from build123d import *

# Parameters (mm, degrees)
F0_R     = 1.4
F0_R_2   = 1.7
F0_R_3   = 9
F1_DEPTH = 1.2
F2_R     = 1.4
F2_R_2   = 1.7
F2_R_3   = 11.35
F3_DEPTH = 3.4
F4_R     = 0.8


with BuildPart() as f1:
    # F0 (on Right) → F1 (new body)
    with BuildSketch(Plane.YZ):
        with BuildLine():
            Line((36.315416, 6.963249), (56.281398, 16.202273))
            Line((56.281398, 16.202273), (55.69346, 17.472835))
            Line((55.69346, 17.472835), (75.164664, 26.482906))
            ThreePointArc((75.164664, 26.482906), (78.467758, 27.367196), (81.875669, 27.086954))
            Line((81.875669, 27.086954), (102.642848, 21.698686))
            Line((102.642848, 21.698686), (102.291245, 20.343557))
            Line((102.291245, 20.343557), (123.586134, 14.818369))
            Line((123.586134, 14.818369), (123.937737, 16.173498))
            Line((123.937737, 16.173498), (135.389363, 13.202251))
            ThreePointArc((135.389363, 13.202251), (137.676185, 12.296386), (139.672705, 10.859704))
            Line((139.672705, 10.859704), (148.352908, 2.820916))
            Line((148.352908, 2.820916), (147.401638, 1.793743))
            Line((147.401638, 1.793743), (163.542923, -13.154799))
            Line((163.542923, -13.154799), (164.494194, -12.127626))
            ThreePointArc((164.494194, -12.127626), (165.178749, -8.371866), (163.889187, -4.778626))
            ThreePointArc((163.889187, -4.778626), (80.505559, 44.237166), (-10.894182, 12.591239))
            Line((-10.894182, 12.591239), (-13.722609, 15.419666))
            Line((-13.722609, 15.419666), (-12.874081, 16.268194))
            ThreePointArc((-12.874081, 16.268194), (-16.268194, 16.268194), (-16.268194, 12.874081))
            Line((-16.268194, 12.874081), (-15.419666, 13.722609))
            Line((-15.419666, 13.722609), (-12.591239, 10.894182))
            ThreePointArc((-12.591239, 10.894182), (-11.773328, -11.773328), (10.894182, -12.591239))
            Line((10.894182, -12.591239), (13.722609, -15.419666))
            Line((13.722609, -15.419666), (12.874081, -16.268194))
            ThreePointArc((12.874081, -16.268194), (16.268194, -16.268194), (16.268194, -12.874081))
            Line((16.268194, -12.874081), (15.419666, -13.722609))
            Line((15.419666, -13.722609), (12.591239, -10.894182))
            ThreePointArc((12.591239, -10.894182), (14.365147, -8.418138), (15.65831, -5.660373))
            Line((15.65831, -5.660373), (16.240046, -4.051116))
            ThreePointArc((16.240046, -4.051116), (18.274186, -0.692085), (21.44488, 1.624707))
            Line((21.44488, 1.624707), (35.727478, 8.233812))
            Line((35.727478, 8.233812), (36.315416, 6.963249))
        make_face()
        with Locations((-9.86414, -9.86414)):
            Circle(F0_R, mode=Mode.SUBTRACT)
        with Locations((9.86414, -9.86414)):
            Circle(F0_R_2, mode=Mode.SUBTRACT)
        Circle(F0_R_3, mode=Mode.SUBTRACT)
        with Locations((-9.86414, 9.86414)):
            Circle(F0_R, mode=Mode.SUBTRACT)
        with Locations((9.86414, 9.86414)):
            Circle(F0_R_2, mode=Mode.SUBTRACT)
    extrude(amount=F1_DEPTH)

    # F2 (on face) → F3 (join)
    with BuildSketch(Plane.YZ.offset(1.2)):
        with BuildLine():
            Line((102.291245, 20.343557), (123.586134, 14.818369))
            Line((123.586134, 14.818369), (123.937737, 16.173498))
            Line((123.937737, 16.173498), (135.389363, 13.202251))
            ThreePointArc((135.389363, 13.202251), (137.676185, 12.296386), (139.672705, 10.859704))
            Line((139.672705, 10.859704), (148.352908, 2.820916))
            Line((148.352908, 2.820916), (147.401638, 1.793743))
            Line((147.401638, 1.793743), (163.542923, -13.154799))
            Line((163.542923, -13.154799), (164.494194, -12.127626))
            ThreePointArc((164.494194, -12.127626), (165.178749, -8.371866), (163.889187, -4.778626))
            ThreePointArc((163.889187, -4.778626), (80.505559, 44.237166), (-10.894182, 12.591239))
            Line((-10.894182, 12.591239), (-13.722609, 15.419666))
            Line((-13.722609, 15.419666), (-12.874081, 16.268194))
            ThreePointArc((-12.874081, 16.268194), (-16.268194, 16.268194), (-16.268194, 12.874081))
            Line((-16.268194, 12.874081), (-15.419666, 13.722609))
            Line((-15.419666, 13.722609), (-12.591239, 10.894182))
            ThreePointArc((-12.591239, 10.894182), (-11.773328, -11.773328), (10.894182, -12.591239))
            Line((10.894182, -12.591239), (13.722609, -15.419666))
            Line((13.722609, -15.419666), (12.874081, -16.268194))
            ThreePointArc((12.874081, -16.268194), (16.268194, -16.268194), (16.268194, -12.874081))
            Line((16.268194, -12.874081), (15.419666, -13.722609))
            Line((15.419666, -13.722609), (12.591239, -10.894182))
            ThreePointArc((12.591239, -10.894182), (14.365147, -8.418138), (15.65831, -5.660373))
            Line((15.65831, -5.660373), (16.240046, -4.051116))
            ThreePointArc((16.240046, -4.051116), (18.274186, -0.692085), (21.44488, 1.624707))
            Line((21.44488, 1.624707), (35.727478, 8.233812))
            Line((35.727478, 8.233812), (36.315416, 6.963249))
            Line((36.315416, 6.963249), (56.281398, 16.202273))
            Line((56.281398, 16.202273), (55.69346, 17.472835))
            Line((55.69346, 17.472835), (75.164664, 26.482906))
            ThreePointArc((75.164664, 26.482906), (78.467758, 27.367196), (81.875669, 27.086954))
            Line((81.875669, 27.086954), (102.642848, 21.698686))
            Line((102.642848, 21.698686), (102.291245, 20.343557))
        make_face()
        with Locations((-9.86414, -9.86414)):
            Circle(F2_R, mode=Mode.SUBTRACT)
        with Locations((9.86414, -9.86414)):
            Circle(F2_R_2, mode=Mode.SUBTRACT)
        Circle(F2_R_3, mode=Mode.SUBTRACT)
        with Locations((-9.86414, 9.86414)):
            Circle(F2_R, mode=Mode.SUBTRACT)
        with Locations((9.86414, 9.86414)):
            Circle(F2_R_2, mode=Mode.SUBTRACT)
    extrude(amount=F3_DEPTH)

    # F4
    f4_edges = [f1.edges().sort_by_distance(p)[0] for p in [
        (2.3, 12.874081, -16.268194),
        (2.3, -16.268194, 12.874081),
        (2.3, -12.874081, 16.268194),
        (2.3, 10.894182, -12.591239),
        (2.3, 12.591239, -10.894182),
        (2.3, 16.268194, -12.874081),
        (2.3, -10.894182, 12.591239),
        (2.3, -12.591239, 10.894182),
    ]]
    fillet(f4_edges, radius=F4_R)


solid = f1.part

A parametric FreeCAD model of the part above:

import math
import FreeCAD as App
import Part
import Sketcher
Q = App.Units.Quantity


def edges_at(feature, points):
    """Names of the edges that pass closest to the given points."""
    edges = feature.Shape.Edges
    near = lambda p: min(range(len(edges)), key=lambda i: edges[i].distToShape(Part.Vertex(*p))[0])
    return sorted({f"Edge{near(p) + 1}" for p in points})

doc = App.newDocument("Part")
body = doc.addObject("PartDesign::Body", "Body")

sketch1 = body.newObject("Sketcher::SketchObject", "Sketch")
sketch1.AttachmentSupport = (doc.getObject("YZ_Plane"), [""])
sketch1.MapMode = "FlatFace"
sketch1.addGeometry([
    Part.LineSegment(App.Vector(36.315416, 6.963249, 0), App.Vector(56.281398, 16.202273, 0)),
    Part.LineSegment(App.Vector(56.281398, 16.202273, 0), App.Vector(55.69346, 17.472835, 0)),
    Part.LineSegment(App.Vector(55.69346, 17.472835, 0), App.Vector(75.164664, 26.482906, 0)),
    Part.ArcOfCircle(Part.Circle(App.Vector(79.364219, 17.40746, 0), App.Vector(0, 0, 1), 9.999999), math.radians(75.454723), math.radians(114.831781)),
    Part.LineSegment(App.Vector(81.875669, 27.086954, 0), App.Vector(102.642848, 21.698686, 0)),
    Part.LineSegment(App.Vector(102.642848, 21.698686, 0), App.Vector(102.291245, 20.343557, 0)),
    Part.LineSegment(App.Vector(102.291245, 20.343557, 0), App.Vector(123.586134, 14.818369, 0)),
    Part.LineSegment(App.Vector(123.586134, 14.818369, 0), App.Vector(123.937737, 16.173498, 0)),
    Part.LineSegment(App.Vector(123.937737, 16.173498, 0), App.Vector(135.389363, 13.202251, 0)),
    Part.ArcOfCircle(Part.Circle(App.Vector(132.877908, 3.522746, 0), App.Vector(0, 0, 1), 10.000011), math.radians(47.197058), math.radians(75.454707)),
    Part.LineSegment(App.Vector(139.672705, 10.859704, 0), App.Vector(148.352908, 2.820916, 0)),
    Part.LineSegment(App.Vector(148.352908, 2.820916, 0), App.Vector(147.401638, 1.793743, 0)),
    Part.LineSegment(App.Vector(147.401638, 1.793743, 0), App.Vector(163.542923, -13.154799, 0)),
    Part.LineSegment(App.Vector(163.542923, -13.154799, 0), App.Vector(164.494194, -12.127626, 0)),
    Part.ArcOfCircle(Part.Circle(App.Vector(157.845732, -8.975558, 0), App.Vector(0, 0, 1), 7.357825), math.radians(-25.365858), math.radians(34.778391)),
    Part.ArcOfCircle(Part.Circle(App.Vector(69.091976, -70.611425, 0), App.Vector(0, 0, 1), 115.414335), math.radians(34.778403), math.radians(133.870827)),
    Part.LineSegment(App.Vector(-10.894182, 12.591239, 0), App.Vector(-13.722609, 15.419666, 0)),
    Part.LineSegment(App.Vector(-13.722609, 15.419666, 0), App.Vector(-12.874081, 16.268194, 0)),
    Part.ArcOfCircle(Part.Circle(App.Vector(-14.571138, 14.571138, 0), App.Vector(0, 0, 1), 2.4), math.radians(45), math.radians(225)),
    Part.LineSegment(App.Vector(-16.268194, 12.874081, 0), App.Vector(-15.419666, 13.722609, 0)),
    Part.LineSegment(App.Vector(-15.419666, 13.722609, 0), App.Vector(-12.591239, 10.894182, 0)),
    Part.ArcOfCircle(Part.Circle(App.Vector(0, 0, 0), App.Vector(0, 0, 1), 16.65), math.radians(139.13301), math.radians(310.86699)),
    Part.LineSegment(App.Vector(10.894182, -12.591239, 0), App.Vector(13.722609, -15.419666, 0)),
    Part.LineSegment(App.Vector(13.722609, -15.419666, 0), App.Vector(12.874081, -16.268194, 0)),
    Part.ArcOfCircle(Part.Circle(App.Vector(14.571138, -14.571138, 0), App.Vector(0, 0, 1), 2.4), math.radians(-135), math.radians(45)),
    Part.LineSegment(App.Vector(16.268194, -12.874081, 0), App.Vector(15.419666, -13.722609, 0)),
    Part.LineSegment(App.Vector(15.419666, -13.722609, 0), App.Vector(12.591239, -10.894182, 0)),
    Part.ArcOfCircle(Part.Circle(App.Vector(-0.000003, 0.000001, 0), App.Vector(0, 0, 1), 16.650004), math.radians(-40.866985), math.radians(-19.874581)),
    Part.LineSegment(App.Vector(15.65831, -5.660373, 0), App.Vector(16.240046, -4.051116, 0)),
    Part.ArcOfCircle(Part.Circle(App.Vector(25.644436, -7.450739, 0), App.Vector(0, 0, 1), 10), math.radians(114.831787), math.radians(160.125422)),
    Part.LineSegment(App.Vector(21.44488, 1.624707, 0), App.Vector(35.727478, 8.233812, 0)),
    Part.LineSegment(App.Vector(35.727478, 8.233812, 0), App.Vector(36.315416, 6.963249, 0)),
    Part.Circle(App.Vector(-9.86414, -9.86414, 0), App.Vector(0, 0, 1), 1.4),
    Part.Circle(App.Vector(9.86414, -9.86414, 0), App.Vector(0, 0, 1), 1.7),
    Part.Circle(App.Vector(0, 0, 0), App.Vector(0, 0, 1), 9),
    Part.Circle(App.Vector(-9.86414, 9.86414, 0), App.Vector(0, 0, 1), 1.4),
    Part.Circle(App.Vector(9.86414, 9.86414, 0), App.Vector(0, 0, 1), 1.7),
], False)
sketch1.addConstraint([
    Sketcher.Constraint("Coincident", 0, 2, 1, 1),
    Sketcher.Constraint("Coincident", 1, 2, 2, 1),
    Sketcher.Constraint("Tangent", 2, 2, 3, 2),
    Sketcher.Constraint("Tangent", 3, 1, 4, 1),
    Sketcher.Constraint("Coincident", 4, 2, 5, 1),
    Sketcher.Constraint("Coincident", 5, 2, 6, 1),
    Sketcher.Constraint("Coincident", 6, 2, 7, 1),
    Sketcher.Constraint("Coincident", 7, 2, 8, 1),
    Sketcher.Constraint("Tangent", 8, 2, 9, 2),
    Sketcher.Constraint("Tangent", 9, 1, 10, 1),
    Sketcher.Constraint("Coincident", 10, 2, 11, 1),
    Sketcher.Constraint("Coincident", 11, 2, 12, 1),
    Sketcher.Constraint("Coincident", 12, 2, 13, 1),
    Sketcher.Constraint("Coincident", 13, 2, 14, 1),
    Sketcher.Constraint("Tangent", 14, 2, 15, 1),
    Sketcher.Constraint("Coincident", 15, 2, 16, 1),
    Sketcher.Constraint("Coincident", 16, 2, 17, 1),
    Sketcher.Constraint("Coincident", 17, 2, 18, 1),
    Sketcher.Constraint("Coincident", 18, 2, 19, 1),
    Sketcher.Constraint("Coincident", 19, 2, 20, 1),
    Sketcher.Constraint("Coincident", 20, 2, 21, 1),
    Sketcher.Constraint("Coincident", 21, 2, 22, 1),
    Sketcher.Constraint("Coincident", 22, 2, 23, 1),
    Sketcher.Constraint("Coincident", 23, 2, 24, 1),
    Sketcher.Constraint("Coincident", 24, 2, 25, 1),
    Sketcher.Constraint("Coincident", 25, 2, 26, 1),
    Sketcher.Constraint("Coincident", 26, 2, 27, 1),
    Sketcher.Constraint("Tangent", 27, 2, 28, 1),
    Sketcher.Constraint("Tangent", 28, 2, 29, 2),
    Sketcher.Constraint("Tangent", 29, 1, 30, 1),
    Sketcher.Constraint("Coincident", 30, 2, 31, 1),
    Sketcher.Constraint("Coincident", 31, 2, 0, 1),
    Sketcher.Constraint("Coincident", 21, 3, -1, 1),
    Sketcher.Constraint("Coincident", 27, 3, -1, 1),
    Sketcher.Constraint("Coincident", 34, 3, -1, 1),
    Sketcher.Constraint("Equal", 18, 24),
    Sketcher.Constraint("Equal", 3, 29),
    Sketcher.Constraint("Equal", 32, 35),
    Sketcher.Constraint("Equal", 33, 36),
    Sketcher.Constraint("Symmetric", 18, 3, 24, 3, -1, 1),
    Sketcher.Constraint("Symmetric", 33, 3, 35, 3, -1, 1),
    Sketcher.Constraint("Symmetric", 32, 3, 36, 3, -1, 1),
    Sketcher.Constraint("Symmetric", 15, 2, 21, 2, -1, 1),
    Sketcher.Constraint("Symmetric", 16, 2, 22, 2, -1, 1),
    Sketcher.Constraint("Symmetric", 19, 2, 25, 2, -1, 1),
    Sketcher.Constraint("Symmetric", 20, 2, 26, 2, -1, 1),
    Sketcher.Constraint("Symmetric", 32, 3, 33, 3, -2),
    Sketcher.Constraint("Perpendicular", 0, 1),
    Sketcher.Constraint("Perpendicular", 1, 2),
    Sketcher.Constraint("Perpendicular", 4, 5),
    Sketcher.Constraint("Perpendicular", 5, 6),
    Sketcher.Constraint("Perpendicular", 6, 7),
    Sketcher.Constraint("Perpendicular", 7, 8),
    Sketcher.Constraint("Perpendicular", 10, 11),
    Sketcher.Constraint("Perpendicular", 11, 12),
    Sketcher.Constraint("Perpendicular", 12, 13),
    Sketcher.Constraint("Perpendicular", 16, 17),
    Sketcher.Constraint("Parallel", 17, 19),
    Sketcher.Constraint("Perpendicular", 19, 20),
    Sketcher.Constraint("Perpendicular", 22, 23),
    Sketcher.Constraint("Parallel", 23, 25),
    Sketcher.Constraint("Parallel", 2, 30),
    Sketcher.Constraint("Perpendicular", 30, 31),
    Sketcher.Constraint("Equal", 2, 4),
    Sketcher.Constraint("Equal", 1, 5),
    Sketcher.Constraint("Equal", 0, 6),
    Sketcher.Constraint("Equal", 5, 7),
    Sketcher.Constraint("Equal", 8, 10),
    Sketcher.Constraint("Equal", 7, 11),
    Sketcher.Constraint("Equal", 6, 12),
    Sketcher.Constraint("Equal", 11, 13),
    Sketcher.Constraint("Equal", 17, 19),
    Sketcher.Constraint("Equal", 16, 20),
    Sketcher.Constraint("Equal", 13, 31),
    Sketcher.Constraint("Diameter", 34, 18.0),
    Sketcher.Constraint("Radius", 3, 9.999999),
    Sketcher.Constraint("Diameter", 32, 2.8),
    Sketcher.Constraint("Diameter", 33, 3.4),
    Sketcher.Constraint("Radius", 18, 2.4),
    Sketcher.Constraint("Angle", 16, Q("135 deg")),
    Sketcher.Constraint("Radius", 21, 16.65),
    Sketcher.Constraint("Distance", 0, 22.0),
    Sketcher.Constraint("Distance", 16, 4.0),
    Sketcher.Constraint("Distance", 1, 1.4),
    Sketcher.Constraint("Distance", 17, 1.2),
    Sketcher.Constraint("Radius", 9, 10.000011),
    Sketcher.Constraint("Radius", 14, 7.357825),
    Sketcher.Constraint("Radius", 15, 115.414335),
    Sketcher.Constraint("DistanceX", 9, 3, 10, 2, 15.475),
    Sketcher.Constraint("DistanceY", 13, 2, 14, 2, 7.349),
    Sketcher.Constraint("DistanceX", -1, 1, 0, 2, 56.281398),
    Sketcher.Constraint("DistanceY", 12, 2, -1, 1, 13.154799),
    Sketcher.Constraint("DistanceX", 24, 3, 29, 3, 11.073299),
    Sketcher.Constraint("DistanceY", 24, 3, 29, 3, 7.120399),
    Sketcher.Constraint("DistanceY", 29, 3, 3, 3, 24.858199),
    Sketcher.Constraint("DistanceY", 32, 3, 29, 3, 2.413401),
    Sketcher.Constraint("DistanceY", 14, 3, 11, 2, 10.769301),
    Sketcher.Constraint("DistanceX", 20, 2, 35, 3, 2.727099),
    Sketcher.Constraint("DistanceX", 18, 3, 20, 2, 1.979899),
    Sketcher.Constraint("DistanceX", 29, 1, 30, 2, 14.282598),
    Sketcher.Constraint("DistanceX", -1, 1, 3, 3, 79.364219),
])
pad1 = body.newObject("PartDesign::Pad", "Pad")
pad1.Profile = sketch1
pad1.Length = 1.2

sketch2 = body.newObject("Sketcher::SketchObject", "Sketch001")
sketch2.AttachmentSupport = (doc.getObject("YZ_Plane"), [""])
sketch2.MapMode = "FlatFace"
sketch2.AttachmentOffset = App.Placement(App.Vector(0, 0, 1.2), App.Rotation())
sketch2.addGeometry([
    Part.LineSegment(App.Vector(102.291245, 20.343557, 0), App.Vector(123.586134, 14.818369, 0)),
    Part.LineSegment(App.Vector(123.586134, 14.818369, 0), App.Vector(123.937737, 16.173498, 0)),
    Part.LineSegment(App.Vector(123.937737, 16.173498, 0), App.Vector(135.389363, 13.202251, 0)),
    Part.ArcOfCircle(Part.Circle(App.Vector(132.877908, 3.522746, 0), App.Vector(0, 0, 1), 10.000011), math.radians(47.197058), math.radians(75.454707)),
    Part.LineSegment(App.Vector(139.672705, 10.859704, 0), App.Vector(148.352908, 2.820916, 0)),
    Part.LineSegment(App.Vector(148.352908, 2.820916, 0), App.Vector(147.401638, 1.793743, 0)),
    Part.LineSegment(App.Vector(147.401638, 1.793743, 0), App.Vector(163.542923, -13.154799, 0)),
    Part.LineSegment(App.Vector(163.542923, -13.154799, 0), App.Vector(164.494194, -12.127626, 0)),
    Part.ArcOfCircle(Part.Circle(App.Vector(157.845732, -8.975558, 0), App.Vector(0, 0, 1), 7.357825), math.radians(-25.365858), math.radians(34.778391)),
    Part.ArcOfCircle(Part.Circle(App.Vector(69.091976, -70.611425, 0), App.Vector(0, 0, 1), 115.414335), math.radians(34.778403), math.radians(133.870827)),
    Part.LineSegment(App.Vector(-10.894182, 12.591239, 0), App.Vector(-13.722609, 15.419666, 0)),
    Part.LineSegment(App.Vector(-13.722609, 15.419666, 0), App.Vector(-12.874081, 16.268194, 0)),
    Part.ArcOfCircle(Part.Circle(App.Vector(-14.571138, 14.571138, 0), App.Vector(0, 0, 1), 2.4), math.radians(45), math.radians(225)),
    Part.LineSegment(App.Vector(-16.268194, 12.874081, 0), App.Vector(-15.419666, 13.722609, 0)),
    Part.LineSegment(App.Vector(-15.419666, 13.722609, 0), App.Vector(-12.591239, 10.894182, 0)),
    Part.ArcOfCircle(Part.Circle(App.Vector(0, 0, 0), App.Vector(0, 0, 1), 16.65), math.radians(139.13301), math.radians(310.86699)),
    Part.LineSegment(App.Vector(10.894182, -12.591239, 0), App.Vector(13.722609, -15.419666, 0)),
    Part.LineSegment(App.Vector(13.722609, -15.419666, 0), App.Vector(12.874081, -16.268194, 0)),
    Part.ArcOfCircle(Part.Circle(App.Vector(14.571138, -14.571138, 0), App.Vector(0, 0, 1), 2.4), math.radians(-135), math.radians(45)),
    Part.LineSegment(App.Vector(16.268194, -12.874081, 0), App.Vector(15.419666, -13.722609, 0)),
    Part.LineSegment(App.Vector(15.419666, -13.722609, 0), App.Vector(12.591239, -10.894182, 0)),
    Part.ArcOfCircle(Part.Circle(App.Vector(-0.000003, 0.000001, 0), App.Vector(0, 0, 1), 16.650004), math.radians(-40.866985), math.radians(-19.874581)),
    Part.LineSegment(App.Vector(15.65831, -5.660373, 0), App.Vector(16.240046, -4.051116, 0)),
    Part.ArcOfCircle(Part.Circle(App.Vector(25.644436, -7.450739, 0), App.Vector(0, 0, 1), 10), math.radians(114.831787), math.radians(160.125422)),
    Part.LineSegment(App.Vector(21.44488, 1.624707, 0), App.Vector(35.727478, 8.233812, 0)),
    Part.LineSegment(App.Vector(35.727478, 8.233812, 0), App.Vector(36.315416, 6.963249, 0)),
    Part.LineSegment(App.Vector(36.315416, 6.963249, 0), App.Vector(56.281398, 16.202273, 0)),
    Part.LineSegment(App.Vector(56.281398, 16.202273, 0), App.Vector(55.69346, 17.472835, 0)),
    Part.LineSegment(App.Vector(55.69346, 17.472835, 0), App.Vector(75.164664, 26.482906, 0)),
    Part.ArcOfCircle(Part.Circle(App.Vector(79.364219, 17.40746, 0), App.Vector(0, 0, 1), 9.999999), math.radians(75.454723), math.radians(114.831781)),
    Part.LineSegment(App.Vector(81.875669, 27.086954, 0), App.Vector(102.642848, 21.698686, 0)),
    Part.LineSegment(App.Vector(102.642848, 21.698686, 0), App.Vector(102.291245, 20.343557, 0)),
    Part.Circle(App.Vector(-9.86414, -9.86414, 0), App.Vector(0, 0, 1), 1.4),
    Part.Circle(App.Vector(9.86414, -9.86414, 0), App.Vector(0, 0, 1), 1.7),
    Part.Circle(App.Vector(0, 0, 0), App.Vector(0, 0, 1), 11.35),
    Part.Circle(App.Vector(-9.86414, 9.86414, 0), App.Vector(0, 0, 1), 1.4),
    Part.Circle(App.Vector(9.86414, 9.86414, 0), App.Vector(0, 0, 1), 1.7),
], False)
sketch2.addConstraint([
    Sketcher.Constraint("Coincident", 0, 2, 1, 1),
    Sketcher.Constraint("Coincident", 1, 2, 2, 1),
    Sketcher.Constraint("Tangent", 2, 2, 3, 2),
    Sketcher.Constraint("Tangent", 3, 1, 4, 1),
    Sketcher.Constraint("Coincident", 4, 2, 5, 1),
    Sketcher.Constraint("Coincident", 5, 2, 6, 1),
    Sketcher.Constraint("Coincident", 6, 2, 7, 1),
    Sketcher.Constraint("Coincident", 7, 2, 8, 1),
    Sketcher.Constraint("Tangent", 8, 2, 9, 1),
    Sketcher.Constraint("Coincident", 9, 2, 10, 1),
    Sketcher.Constraint("Coincident", 10, 2, 11, 1),
    Sketcher.Constraint("Coincident", 11, 2, 12, 1),
    Sketcher.Constraint("Coincident", 12, 2, 13, 1),
    Sketcher.Constraint("Coincident", 13, 2, 14, 1),
    Sketcher.Constraint("Coincident", 14, 2, 15, 1),
    Sketcher.Constraint("Coincident", 15, 2, 16, 1),
    Sketcher.Constraint("Coincident", 16, 2, 17, 1),
    Sketcher.Constraint("Coincident", 17, 2, 18, 1),
    Sketcher.Constraint("Coincident", 18, 2, 19, 1),
    Sketcher.Constraint("Coincident", 19, 2, 20, 1),
    Sketcher.Constraint("Coincident", 20, 2, 21, 1),
    Sketcher.Constraint("Tangent", 21, 2, 22, 1),
    Sketcher.Constraint("Tangent", 22, 2, 23, 2),
    Sketcher.Constraint("Tangent", 23, 1, 24, 1),
    Sketcher.Constraint("Coincident", 24, 2, 25, 1),
    Sketcher.Constraint("Coincident", 25, 2, 26, 1),
    Sketcher.Constraint("Coincident", 26, 2, 27, 1),
    Sketcher.Constraint("Coincident", 27, 2, 28, 1),
    Sketcher.Constraint("Tangent", 28, 2, 29, 2),
    Sketcher.Constraint("Tangent", 29, 1, 30, 1),
    Sketcher.Constraint("Coincident", 30, 2, 31, 1),
    Sketcher.Constraint("Coincident", 31, 2, 0, 1),
    Sketcher.Constraint("Coincident", 15, 3, -1, 1),
    Sketcher.Constraint("Coincident", 21, 3, -1, 1),
    Sketcher.Constraint("Coincident", 34, 3, -1, 1),
    Sketcher.Constraint("Equal", 12, 18),
    Sketcher.Constraint("Equal", 23, 29),
    Sketcher.Constraint("Equal", 32, 35),
    Sketcher.Constraint("Equal", 33, 36),
    Sketcher.Constraint("Symmetric", 12, 3, 18, 3, -1, 1),
    Sketcher.Constraint("Symmetric", 33, 3, 35, 3, -1, 1),
    Sketcher.Constraint("Symmetric", 32, 3, 36, 3, -1, 1),
    Sketcher.Constraint("Symmetric", 9, 2, 15, 2, -1, 1),
    Sketcher.Constraint("Symmetric", 10, 2, 16, 2, -1, 1),
    Sketcher.Constraint("Symmetric", 13, 2, 19, 2, -1, 1),
    Sketcher.Constraint("Symmetric", 14, 2, 20, 2, -1, 1),
    Sketcher.Constraint("Symmetric", 32, 3, 33, 3, -2),
    Sketcher.Constraint("Perpendicular", 0, 1),
    Sketcher.Constraint("Perpendicular", 1, 2),
    Sketcher.Constraint("Perpendicular", 4, 5),
    Sketcher.Constraint("Perpendicular", 5, 6),
    Sketcher.Constraint("Perpendicular", 6, 7),
    Sketcher.Constraint("Perpendicular", 10, 11),
    Sketcher.Constraint("Parallel", 11, 13),
    Sketcher.Constraint("Perpendicular", 13, 14),
    Sketcher.Constraint("Perpendicular", 16, 17),
    Sketcher.Constraint("Parallel", 17, 19),
    Sketcher.Constraint("Perpendicular", 24, 25),
    Sketcher.Constraint("Perpendicular", 25, 26),
    Sketcher.Constraint("Perpendicular", 26, 27),
    Sketcher.Constraint("Perpendicular", 27, 28),
    Sketcher.Constraint("Parallel", 2, 30),
    Sketcher.Constraint("Perpendicular", 30, 31),
    Sketcher.Constraint("Equal", 2, 4),
    Sketcher.Constraint("Equal", 1, 5),
    Sketcher.Constraint("Equal", 0, 6),
    Sketcher.Constraint("Equal", 5, 7),
    Sketcher.Constraint("Equal", 11, 13),
    Sketcher.Constraint("Equal", 10, 14),
    Sketcher.Constraint("Equal", 7, 25),
    Sketcher.Constraint("Equal", 6, 26),
    Sketcher.Constraint("Equal", 25, 27),
    Sketcher.Constraint("Equal", 28, 30),
    Sketcher.Constraint("Equal", 27, 31),
    Sketcher.Constraint("Radius", 23, 10.0),
    Sketcher.Constraint("Diameter", 32, 2.8),
    Sketcher.Constraint("Diameter", 33, 3.4),
    Sketcher.Constraint("Diameter", 34, 22.7),
    Sketcher.Constraint("Radius", 12, 2.4),
    Sketcher.Constraint("Angle", 10, Q("135 deg")),
    Sketcher.Constraint("Radius", 15, 16.65),
    Sketcher.Constraint("Distance", 0, 22.0),
    Sketcher.Constraint("Distance", 10, 4.0),
    Sketcher.Constraint("Distance", 1, 1.4),
    Sketcher.Constraint("Distance", 11, 1.2),
    Sketcher.Constraint("Radius", 3, 10.000011),
    Sketcher.Constraint("Radius", 8, 7.357825),
    Sketcher.Constraint("Radius", 9, 115.414335),
    Sketcher.Constraint("DistanceX", 3, 3, 4, 2, 15.475),
    Sketcher.Constraint("DistanceY", 7, 2, 8, 2, 7.349),
    Sketcher.Constraint("DistanceY", 6, 2, -1, 1, 13.154799),
    Sketcher.Constraint("DistanceX", -1, 1, 26, 2, 56.281398),
    Sketcher.Constraint("DistanceX", 18, 3, 23, 3, 11.073299),
    Sketcher.Constraint("DistanceY", 18, 3, 23, 3, 7.120399),
    Sketcher.Constraint("DistanceY", 23, 3, 29, 3, 24.858199),
    Sketcher.Constraint("DistanceY", 32, 3, 23, 3, 2.413401),
    Sketcher.Constraint("DistanceX", 23, 3, 1, 2, 98.293301),
    Sketcher.Constraint("DistanceY", 8, 3, 5, 2, 10.769301),
    Sketcher.Constraint("DistanceX", 14, 2, 35, 3, 2.727099),
    Sketcher.Constraint("DistanceX", 12, 3, 14, 2, 1.979899),
    Sketcher.Constraint("DistanceX", 23, 1, 24, 2, 14.282598),
])
pad2 = body.newObject("PartDesign::Pad", "Pad001")
pad2.Profile = sketch2
pad2.Length = 3.4
doc.recompute()

fillet = body.newObject("PartDesign::Fillet", "Fillet")
fillet.Base = (pad2, edges_at(pad2, [
    (2.3, 12.874, -16.268),
    (2.3, -16.268, 12.874),
    (2.3, -12.874, 16.268),
    (2.3, 10.894, -12.591),
    (2.3, 12.591, -10.894),
    (2.3, 16.268, -12.874),
    (2.3, -10.894, 12.591),
    (2.3, -12.591, 10.894),
]))
fillet.Radius = 0.8

doc.recompute()
